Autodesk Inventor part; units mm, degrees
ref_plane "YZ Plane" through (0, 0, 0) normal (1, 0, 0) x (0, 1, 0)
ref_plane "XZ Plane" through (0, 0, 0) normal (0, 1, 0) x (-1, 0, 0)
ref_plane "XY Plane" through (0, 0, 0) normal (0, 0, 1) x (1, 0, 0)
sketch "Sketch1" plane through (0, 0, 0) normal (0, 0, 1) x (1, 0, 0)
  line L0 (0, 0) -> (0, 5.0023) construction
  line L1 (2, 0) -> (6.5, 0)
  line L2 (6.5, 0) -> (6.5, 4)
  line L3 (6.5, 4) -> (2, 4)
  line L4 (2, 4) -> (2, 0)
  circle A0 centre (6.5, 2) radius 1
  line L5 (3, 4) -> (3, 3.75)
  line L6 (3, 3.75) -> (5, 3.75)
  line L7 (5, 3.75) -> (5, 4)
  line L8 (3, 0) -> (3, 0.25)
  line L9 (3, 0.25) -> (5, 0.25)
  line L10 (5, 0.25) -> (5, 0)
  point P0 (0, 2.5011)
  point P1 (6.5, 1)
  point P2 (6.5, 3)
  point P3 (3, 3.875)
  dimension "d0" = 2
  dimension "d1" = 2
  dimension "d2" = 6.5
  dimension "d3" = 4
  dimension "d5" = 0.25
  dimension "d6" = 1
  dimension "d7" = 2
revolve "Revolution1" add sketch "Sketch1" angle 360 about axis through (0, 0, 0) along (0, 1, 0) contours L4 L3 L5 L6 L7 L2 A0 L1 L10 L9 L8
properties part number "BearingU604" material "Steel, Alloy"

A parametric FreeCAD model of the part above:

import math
import FreeCAD as App
import Part
import Sketcher
from FreeCAD import Vector
Q = App.Units.Quantity

doc = App.newDocument("Part")
body = doc.addObject("PartDesign::Body", "Body")

# Sketch on XY plane
sketch1 = body.newObject("Sketcher::SketchObject", "Sketch")
sketch1.AttachmentSupport = (doc.getObject("XY_Plane"), [""])
sketch1.MapMode = "FlatFace"
sketch1.addGeometry(Part.LineSegment(Vector(2, 4, 0), Vector(2, 0, 0)), False)
sketch1.addGeometry(Part.LineSegment(Vector(2, 0, 0), Vector(3, 0, 0)), False)
sketch1.addGeometry(Part.LineSegment(Vector(3, 0, 0), Vector(3, 0.25, 0)), False)
sketch1.addGeometry(Part.LineSegment(Vector(3, 0.25, 0), Vector(5, 0.25, 0)), False)
sketch1.addGeometry(Part.LineSegment(Vector(5, 0.25, 0), Vector(5, 0, 0)), False)
sketch1.addGeometry(Part.LineSegment(Vector(5, 0, 0), Vector(6.5, 0, 0)), False)
sketch1.addGeometry(Part.LineSegment(Vector(6.5, 0, 0), Vector(6.5, 1, 0)), False)
sketch1.addGeometry(Part.ArcOfCircle(Part.Circle(Vector(6.5, 2, 0), Vector(0, 0, 1), 1), math.radians(90), math.radians(270)), False)
sketch1.addGeometry(Part.LineSegment(Vector(6.5, 3, 0), Vector(6.5, 4, 0)), False)
sketch1.addGeometry(Part.LineSegment(Vector(6.5, 4, 0), Vector(5, 4, 0)), False)
sketch1.addGeometry(Part.LineSegment(Vector(5, 4, 0), Vector(5, 3.75, 0)), False)
sketch1.addGeometry(Part.LineSegment(Vector(5, 3.75, 0), Vector(3, 3.75, 0)), False)
sketch1.addGeometry(Part.LineSegment(Vector(3, 3.75, 0), Vector(3, 4, 0)), False)
sketch1.addGeometry(Part.LineSegment(Vector(3, 4, 0), Vector(2, 4, 0)), False)
sketch1.addConstraint(Sketcher.Constraint("Coincident", 0, 2, 1, 1))
sketch1.addConstraint(Sketcher.Constraint("Coincident", 1, 2, 2, 1))
sketch1.addConstraint(Sketcher.Constraint("Coincident", 2, 2, 3, 1))
sketch1.addConstraint(Sketcher.Constraint("Coincident", 3, 2, 4, 1))
sketch1.addConstraint(Sketcher.Constraint("Coincident", 4, 2, 5, 1))
sketch1.addConstraint(Sketcher.Constraint("Coincident", 5, 2, 6, 1))
sketch1.addConstraint(Sketcher.Constraint("Coincident", 6, 2, 7, 2))
sketch1.addConstraint(Sketcher.Constraint("Coincident", 7, 1, 8, 1))
sketch1.addConstraint(Sketcher.Constraint("Coincident", 8, 2, 9, 1))
sketch1.addConstraint(Sketcher.Constraint("Coincident", 9, 2, 10, 1))
sketch1.addConstraint(Sketcher.Constraint("Coincident", 10, 2, 11, 1))
sketch1.addConstraint(Sketcher.Constraint("Coincident", 11, 2, 12, 1))
sketch1.addConstraint(Sketcher.Constraint("Coincident", 12, 2, 13, 1))
sketch1.addConstraint(Sketcher.Constraint("Coincident", 13, 2, 0, 1))
sketch1.addConstraint(Sketcher.Constraint("Vertical", 0))
sketch1.addConstraint(Sketcher.Constraint("Horizontal", 1))
sketch1.addConstraint(Sketcher.Constraint("Vertical", 2))
sketch1.addConstraint(Sketcher.Constraint("Horizontal", 3))
sketch1.addConstraint(Sketcher.Constraint("Vertical", 4))
sketch1.addConstraint(Sketcher.Constraint("Horizontal", 5))
sketch1.addConstraint(Sketcher.Constraint("Vertical", 6))
sketch1.addConstraint(Sketcher.Constraint("Vertical", 8))
sketch1.addConstraint(Sketcher.Constraint("Horizontal", 9))
sketch1.addConstraint(Sketcher.Constraint("Vertical", 10))
sketch1.addConstraint(Sketcher.Constraint("Horizontal", 11))
sketch1.addConstraint(Sketcher.Constraint("Vertical", 12))
sketch1.addConstraint(Sketcher.Constraint("Horizontal", 13))
sketch1.addConstraint(Sketcher.Constraint("PointOnObject", 0, 2, -1))
sketch1.addConstraint(Sketcher.Constraint("PointOnObject", 4, 2, -1))
sketch1.addConstraint(Sketcher.Constraint("Horizontal", 9, 2, 12, 2))
sketch1.addConstraint(Sketcher.Constraint("Vertical", 7, 3, 5, 2))
sketch1.addConstraint(Sketcher.Constraint("Vertical", 6, 2, 7, 1))
sketch1.addConstraint(Sketcher.Constraint("Vertical", 4, 2, 9, 2))
sketch1.addConstraint(Sketcher.Constraint("Vertical", 2, 2, 11, 2))
sketch1.addConstraint(Sketcher.Constraint("Equal", 13, 6))
sketch1.addConstraint(Sketcher.Constraint("Equal", 6, 8))
sketch1.addConstraint(Sketcher.Constraint("Equal", 4, 10))
sketch1.addConstraint(Sketcher.Constraint("Radius", 7, Q("1 mm")))
sketch1.addConstraint(Sketcher.Constraint("DistanceX", 1, 1, 1, 2, Q("1 mm")))
sketch1.addConstraint(Sketcher.Constraint("DistanceX", 3, 1, 3, 2, Q("2 mm")))
sketch1.addConstraint(Sketcher.Constraint("DistanceX", -1, 1, 0, 2, Q("2 mm")))
sketch1.addConstraint(Sketcher.Constraint("DistanceY", 2, 1, 2, 2, Q("0.25 mm")))
sketch1.addConstraint(Sketcher.Constraint("DistanceX", -1, 1, 7, 3, Q("6.5 mm")))
revolution = body.newObject("PartDesign::Revolution", "Revolution")
revolution.Profile = sketch1
revolution.ReferenceAxis = (sketch1, ["V_Axis"])
revolution.Angle = 360

doc.recompute()
